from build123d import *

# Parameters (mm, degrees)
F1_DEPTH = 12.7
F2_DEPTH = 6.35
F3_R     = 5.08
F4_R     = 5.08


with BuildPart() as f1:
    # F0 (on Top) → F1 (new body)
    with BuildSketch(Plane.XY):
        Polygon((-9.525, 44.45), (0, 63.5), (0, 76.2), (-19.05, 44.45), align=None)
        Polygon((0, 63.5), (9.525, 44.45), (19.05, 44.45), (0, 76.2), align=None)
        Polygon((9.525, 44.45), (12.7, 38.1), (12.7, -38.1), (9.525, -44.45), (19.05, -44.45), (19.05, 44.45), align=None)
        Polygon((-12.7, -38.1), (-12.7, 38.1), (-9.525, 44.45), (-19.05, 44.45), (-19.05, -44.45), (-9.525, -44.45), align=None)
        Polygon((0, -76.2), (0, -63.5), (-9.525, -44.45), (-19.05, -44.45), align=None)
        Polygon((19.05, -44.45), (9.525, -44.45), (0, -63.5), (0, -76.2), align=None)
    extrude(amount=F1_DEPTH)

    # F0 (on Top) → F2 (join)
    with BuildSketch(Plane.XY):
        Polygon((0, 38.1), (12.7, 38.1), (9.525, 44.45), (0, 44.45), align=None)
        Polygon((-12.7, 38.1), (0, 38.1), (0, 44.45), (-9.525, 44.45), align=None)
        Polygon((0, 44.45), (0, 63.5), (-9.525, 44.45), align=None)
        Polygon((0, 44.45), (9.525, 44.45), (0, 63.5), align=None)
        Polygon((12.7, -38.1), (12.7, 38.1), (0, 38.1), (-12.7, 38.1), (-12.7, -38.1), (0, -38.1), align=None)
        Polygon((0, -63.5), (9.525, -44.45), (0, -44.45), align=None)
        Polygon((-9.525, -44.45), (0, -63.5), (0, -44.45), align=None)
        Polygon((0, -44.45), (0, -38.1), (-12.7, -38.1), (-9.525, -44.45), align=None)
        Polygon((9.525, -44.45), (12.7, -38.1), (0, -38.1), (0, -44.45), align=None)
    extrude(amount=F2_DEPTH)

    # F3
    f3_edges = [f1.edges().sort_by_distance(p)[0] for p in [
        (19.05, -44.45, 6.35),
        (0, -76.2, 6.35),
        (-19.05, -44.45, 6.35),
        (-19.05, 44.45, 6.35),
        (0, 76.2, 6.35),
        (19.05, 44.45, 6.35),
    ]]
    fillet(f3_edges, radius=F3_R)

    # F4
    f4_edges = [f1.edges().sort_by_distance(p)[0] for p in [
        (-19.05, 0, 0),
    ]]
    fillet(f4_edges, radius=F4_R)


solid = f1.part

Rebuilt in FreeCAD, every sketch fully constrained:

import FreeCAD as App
import Part
import Sketcher
Q = App.Units.Quantity


def edges_at(feature, points):
    """Names of the edges that pass closest to the given points."""
    edges = feature.Shape.Edges
    near = lambda p: min(range(len(edges)), key=lambda i: edges[i].distToShape(Part.Vertex(*p))[0])
    return sorted({f"Edge{near(p) + 1}" for p in points})


def add_polygon(sketch, points):
    """Adds a closed chain of lines whose ends are joined by coincident constraints."""
    first, n = sketch.GeometryCount, len(points)
    for a, b in zip(points, points[1:] + points[:1]):
        sketch.addGeometry(Part.LineSegment(App.Vector(*a, 0), App.Vector(*b, 0)), False)
    for i in range(n):
        sketch.addConstraint(Sketcher.Constraint("Coincident", first + i, 2, first + (i + 1) % n, 1))

doc = App.newDocument("Part")
body = doc.addObject("PartDesign::Body", "Body")

# Sketch on XY plane
sketch1 = doc.addObject("Sketcher::SketchObject", "Sketch")
body.addObject(sketch1)
sketch1.AttachmentSupport = (doc.XY_Plane, [""])
sketch1.MapMode = "FlatFace"
add_polygon(sketch1, [(19, -44), (19, 44), (0, 76), (-19, 44), (-19, -44), (0, -76)])  # lines 0-5
add_polygon(sketch1, [(0, 64), (13, 38), (13, -38), (0, -64), (-13, -38), (-13, 38)])  # lines 6-11
sketch1.addConstraint([
    Sketcher.Constraint("Vertical", 0),
    Sketcher.Constraint("Vertical", 3),
    Sketcher.Constraint("Vertical", 7),
    Sketcher.Constraint("Vertical", 10),
    Sketcher.Constraint("Symmetric", 0, 2, 3, 2, -1, 1),
    Sketcher.Constraint("Symmetric", 1, 2, 4, 2, -1, 1),
    Sketcher.Constraint("Symmetric", 6, 2, 9, 2, -1, 1),
    Sketcher.Constraint("Symmetric", 8, 2, 11, 2, -1, 1),
    Sketcher.Constraint("PointOnObject", 1, 2, -2),
    Sketcher.Constraint("PointOnObject", 8, 2, -2),
    Sketcher.Constraint("Parallel", 2, 5),
    Sketcher.Constraint("Parallel", 8, 11),
    Sketcher.Constraint("Horizontal", 0, 2, 2, 2),
    Sketcher.Constraint("Horizontal", 7, 2, 9, 2),
    Sketcher.Constraint("DistanceY", 7, 2, 7, 1, Q("3 in")),
    Sketcher.Constraint("DistanceY", 0, 1, 0, 2, Q("3.5 in")),
    Sketcher.Constraint("DistanceY", -1, 1, 1, 2, Q("3 in")),
    Sketcher.Constraint("DistanceY", 8, 2, 7, 2, Q("1 in")),
    Sketcher.Constraint("DistanceX", 9, 2, 7, 2, Q("1 in")),
    Sketcher.Constraint("DistanceX", 2, 2, 0, 2, Q("1.5 in")),
])
pad1 = doc.addObject("PartDesign::Pad", "Pad")
body.addObject(pad1)
pad1.Profile = sketch1
pad1.Length = Q("0.5 in")

# Sketch on XY plane
sketch2 = doc.addObject("Sketcher::SketchObject", "Sketch001")
body.addObject(sketch2)
sketch2.AttachmentSupport = (doc.XY_Plane, [""])
sketch2.MapMode = "FlatFace"
add_polygon(sketch2, [(13, 38), (0, 64), (-13, 38), (-13, -38), (0, -64), (13, -38)])  # lines 0-5
sketch2.addConstraint([
    Sketcher.Constraint("Vertical", 2),
    Sketcher.Constraint("Vertical", 5),
    Sketcher.Constraint("Symmetric", 0, 2, 3, 2, -1, 1),
    Sketcher.Constraint("Symmetric", 1, 2, 4, 2, -1, 1),
    Sketcher.Constraint("PointOnObject", 0, 2, -2),
    Sketcher.Constraint("Parallel", 0, 3),
    Sketcher.Constraint("Horizontal", 2, 2, 4, 2),
    Sketcher.Constraint("DistanceY", 2, 2, 2, 1, Q("3 in")),
    Sketcher.Constraint("DistanceY", 1, 2, 0, 2, Q("1 in")),
    Sketcher.Constraint("DistanceX", 2, 2, 4, 2, Q("1 in")),
])
pad2 = doc.addObject("PartDesign::Pad", "Pad001")
body.addObject(pad2)
pad2.Profile = sketch2
pad2.Length = Q("0.25 in")
doc.recompute()

fillet = doc.addObject("PartDesign::Fillet", "Fillet")
body.addObject(fillet)
fillet.Base = (pad2, edges_at(pad2, [
    (19.05, -44.45, 6.35),
    (0, -76.2, 6.35),
    (-19.05, -44.45, 6.35),
    (-19.05, 44.45, 6.35),
    (0, 76.2, 6.35),
    (19.05, 44.45, 6.35),
]))
fillet.Radius = Q("0.2 in")
doc.recompute()

fillet2 = doc.addObject("PartDesign::Fillet", "Fillet001")
body.addObject(fillet2)
fillet2.Base = (fillet, edges_at(fillet, [(-19.05, 0, 0)]))
fillet2.Radius = Q("0.2 in")

doc.recompute()
